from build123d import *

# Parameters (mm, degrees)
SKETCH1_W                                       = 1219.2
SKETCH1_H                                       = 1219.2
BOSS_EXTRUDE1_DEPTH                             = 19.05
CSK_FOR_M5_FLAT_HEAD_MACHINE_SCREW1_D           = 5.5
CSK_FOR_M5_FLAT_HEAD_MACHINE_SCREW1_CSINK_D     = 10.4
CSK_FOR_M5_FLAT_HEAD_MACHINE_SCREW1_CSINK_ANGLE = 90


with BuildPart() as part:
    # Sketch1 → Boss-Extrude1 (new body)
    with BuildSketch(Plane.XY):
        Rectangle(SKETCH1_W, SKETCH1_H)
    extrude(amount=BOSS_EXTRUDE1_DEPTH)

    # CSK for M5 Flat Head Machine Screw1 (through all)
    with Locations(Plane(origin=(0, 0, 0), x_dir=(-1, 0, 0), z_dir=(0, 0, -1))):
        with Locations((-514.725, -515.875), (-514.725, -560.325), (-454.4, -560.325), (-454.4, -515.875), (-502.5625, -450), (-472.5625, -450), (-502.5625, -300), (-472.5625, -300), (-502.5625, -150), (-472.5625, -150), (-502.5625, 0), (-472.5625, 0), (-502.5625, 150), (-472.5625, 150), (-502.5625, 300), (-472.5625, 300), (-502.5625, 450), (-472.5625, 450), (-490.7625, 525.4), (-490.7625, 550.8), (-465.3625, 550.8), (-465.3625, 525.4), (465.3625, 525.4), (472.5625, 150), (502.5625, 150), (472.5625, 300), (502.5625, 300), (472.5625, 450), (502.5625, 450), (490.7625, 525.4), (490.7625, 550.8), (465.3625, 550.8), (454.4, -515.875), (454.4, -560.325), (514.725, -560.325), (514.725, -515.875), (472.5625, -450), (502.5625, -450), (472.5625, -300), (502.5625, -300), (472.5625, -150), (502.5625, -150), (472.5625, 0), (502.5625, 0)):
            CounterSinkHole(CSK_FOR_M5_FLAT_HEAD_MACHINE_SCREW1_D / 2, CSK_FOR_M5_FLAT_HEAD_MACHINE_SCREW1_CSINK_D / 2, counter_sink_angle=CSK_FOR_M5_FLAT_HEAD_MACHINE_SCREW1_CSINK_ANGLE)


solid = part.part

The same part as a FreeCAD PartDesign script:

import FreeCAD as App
import Part
import Sketcher
Q = App.Units.Quantity


def add_polygon(sketch, points):
    """Adds a closed chain of lines whose ends are joined by coincident constraints."""
    first, n = sketch.GeometryCount, len(points)
    for a, b in zip(points, points[1:] + points[:1]):
        sketch.addGeometry(Part.LineSegment(App.Vector(*a, 0), App.Vector(*b, 0)), False)
    for i in range(n):
        sketch.addConstraint(Sketcher.Constraint("Coincident", first + i, 2, first + (i + 1) % n, 1))

doc = App.newDocument("Part")
body = doc.addObject("PartDesign::Body", "Body")

sketch1 = body.newObject("Sketcher::SketchObject", "Sketch")
sketch1.AttachmentSupport = (doc.getObject("XY_Plane"), [""])
sketch1.MapMode = "FlatFace"
add_polygon(sketch1, [(-610, 610), (-610, -610), (610, -610), (610, 610)])
sketch1.addConstraint(Sketcher.Constraint("Vertical", 0))
sketch1.addConstraint(Sketcher.Constraint("Horizontal", 1))
sketch1.addConstraint(Sketcher.Constraint("Vertical", 2))
sketch1.addConstraint(Sketcher.Constraint("Horizontal", 3))
sketch1.addConstraint(Sketcher.Constraint("Symmetric", 0, 2, 2, 2, -1, 1))
sketch1.addConstraint(Sketcher.Constraint("Equal", 3, 0))
sketch1.addConstraint(Sketcher.Constraint("DistanceX", 1, 1, 1, 2, Q("48 in")))
pad1 = body.newObject("PartDesign::Pad", "Pad")
pad1.Profile = sketch1
pad1.Length = Q("0.75 in")

sketch2 = body.newObject("Sketcher::SketchObject", "Sketch001")
sketch2.AttachmentSupport = (doc.getObject("XY_Plane"), [""])
sketch2.MapMode = "FlatFace"
sketch2.addGeometry(Part.Circle(App.Vector(514.7, -515.9, 0), App.Vector(0, 0, 1), 2.8), False)
sketch2.addGeometry(Part.Circle(App.Vector(514.7, -560.3, 0), App.Vector(0, 0, 1), 2.8), False)
sketch2.addGeometry(Part.Circle(App.Vector(454.4, -560.3, 0), App.Vector(0, 0, 1), 2.8), False)
sketch2.addGeometry(Part.Circle(App.Vector(454.4, -515.9, 0), App.Vector(0, 0, 1), 2.8), False)
sketch2.addGeometry(Part.Circle(App.Vector(502.6, -450, 0), App.Vector(0, 0, 1), 2.8), False)
sketch2.addGeometry(Part.Circle(App.Vector(472.6, -450, 0), App.Vector(0, 0, 1), 2.8), False)
sketch2.addGeometry(Part.Circle(App.Vector(502.6, -300, 0), App.Vector(0, 0, 1), 2.8), False)
sketch2.addGeometry(Part.Circle(App.Vector(472.6, -300, 0), App.Vector(0, 0, 1), 2.8), False)
sketch2.addGeometry(Part.Circle(App.Vector(502.6, -150, 0), App.Vector(0, 0, 1), 2.8), False)
sketch2.addGeometry(Part.Circle(App.Vector(472.6, -150, 0), App.Vector(0, 0, 1), 2.8), False)
sketch2.addGeometry(Part.Circle(App.Vector(502.6, 0, 0), App.Vector(0, 0, 1), 2.8), False)
sketch2.addGeometry(Part.Circle(App.Vector(472.6, 0, 0), App.Vector(0, 0, 1), 2.8), False)
sketch2.addGeometry(Part.Circle(App.Vector(502.6, 150, 0), App.Vector(0, 0, 1), 2.8), False)
sketch2.addGeometry(Part.Circle(App.Vector(472.6, 150, 0), App.Vector(0, 0, 1), 2.8), False)
sketch2.addGeometry(Part.Circle(App.Vector(502.6, 300, 0), App.Vector(0, 0, 1), 2.8), False)
sketch2.addGeometry(Part.Circle(App.Vector(472.6, 300, 0), App.Vector(0, 0, 1), 2.8), False)
sketch2.addGeometry(Part.Circle(App.Vector(502.6, 450, 0), App.Vector(0, 0, 1), 2.8), False)
sketch2.addGeometry(Part.Circle(App.Vector(472.6, 450, 0), App.Vector(0, 0, 1), 2.8), False)
sketch2.addGeometry(Part.Circle(App.Vector(490.8, 525.4, 0), App.Vector(0, 0, 1), 2.8), False)
sketch2.addGeometry(Part.Circle(App.Vector(490.8, 550.8, 0), App.Vector(0, 0, 1), 2.8), False)
sketch2.addGeometry(Part.Circle(App.Vector(465.4, 550.8, 0), App.Vector(0, 0, 1), 2.8), False)
sketch2.addGeometry(Part.Circle(App.Vector(465.4, 525.4, 0), App.Vector(0, 0, 1), 2.8), False)
sketch2.addGeometry(Part.Circle(App.Vector(-465.4, 525.4, 0), App.Vector(0, 0, 1), 2.8), False)
sketch2.addGeometry(Part.Circle(App.Vector(-472.6, 150, 0), App.Vector(0, 0, 1), 2.8), False)
sketch2.addGeometry(Part.Circle(App.Vector(-502.6, 150, 0), App.Vector(0, 0, 1), 2.8), False)
sketch2.addGeometry(Part.Circle(App.Vector(-472.6, 300, 0), App.Vector(0, 0, 1), 2.8), False)
sketch2.addGeometry(Part.Circle(App.Vector(-502.6, 300, 0), App.Vector(0, 0, 1), 2.8), False)
sketch2.addGeometry(Part.Circle(App.Vector(-472.6, 450, 0), App.Vector(0, 0, 1), 2.8), False)
sketch2.addGeometry(Part.Circle(App.Vector(-502.6, 450, 0), App.Vector(0, 0, 1), 2.8), False)
sketch2.addGeometry(Part.Circle(App.Vector(-490.8, 525.4, 0), App.Vector(0, 0, 1), 2.8), False)
sketch2.addGeometry(Part.Circle(App.Vector(-490.8, 550.8, 0), App.Vector(0, 0, 1), 2.8), False)
sketch2.addGeometry(Part.Circle(App.Vector(-465.4, 550.8, 0), App.Vector(0, 0, 1), 2.8), False)
sketch2.addGeometry(Part.Circle(App.Vector(-454.4, -515.9, 0), App.Vector(0, 0, 1), 2.8), False)
sketch2.addGeometry(Part.Circle(App.Vector(-454.4, -560.3, 0), App.Vector(0, 0, 1), 2.8), False)
sketch2.addGeometry(Part.Circle(App.Vector(-514.7, -560.3, 0), App.Vector(0, 0, 1), 2.8), False)
sketch2.addGeometry(Part.Circle(App.Vector(-514.7, -515.9, 0), App.Vector(0, 0, 1), 2.8), False)
sketch2.addGeometry(Part.Circle(App.Vector(-472.6, -450, 0), App.Vector(0, 0, 1), 2.8), False)
sketch2.addGeometry(Part.Circle(App.Vector(-502.6, -450, 0), App.Vector(0, 0, 1), 2.8), False)
sketch2.addGeometry(Part.Circle(App.Vector(-472.6, -300, 0), App.Vector(0, 0, 1), 2.8), False)
sketch2.addGeometry(Part.Circle(App.Vector(-502.6, -300, 0), App.Vector(0, 0, 1), 2.8), False)
sketch2.addGeometry(Part.Circle(App.Vector(-472.6, -150, 0), App.Vector(0, 0, 1), 2.8), False)
sketch2.addGeometry(Part.Circle(App.Vector(-502.6, -150, 0), App.Vector(0, 0, 1), 2.8), False)
sketch2.addGeometry(Part.Circle(App.Vector(-472.6, 0, 0), App.Vector(0, 0, 1), 2.8), False)
sketch2.addGeometry(Part.Circle(App.Vector(-502.6, 0, 0), App.Vector(0, 0, 1), 2.8), False)
sketch2.addConstraint(Sketcher.Constraint("Equal", 0, 1))
sketch2.addConstraint(Sketcher.Constraint("Equal", 1, 2))
sketch2.addConstraint(Sketcher.Constraint("Equal", 2, 3))
sketch2.addConstraint(Sketcher.Constraint("Equal", 3, 4))
sketch2.addConstraint(Sketcher.Constraint("Equal", 4, 5))
sketch2.addConstraint(Sketcher.Constraint("Equal", 5, 6))
sketch2.addConstraint(Sketcher.Constraint("Equal", 6, 7))
sketch2.addConstraint(Sketcher.Constraint("Equal", 7, 8))
sketch2.addConstraint(Sketcher.Constraint("Equal", 8, 9))
sketch2.addConstraint(Sketcher.Constraint("Equal", 9, 10))
sketch2.addConstraint(Sketcher.Constraint("Equal", 10, 11))
sketch2.addConstraint(Sketcher.Constraint("Equal", 11, 12))
sketch2.addConstraint(Sketcher.Constraint("Equal", 12, 13))
sketch2.addConstraint(Sketcher.Constraint("Equal", 13, 14))
sketch2.addConstraint(Sketcher.Constraint("Equal", 14, 15))
sketch2.addConstraint(Sketcher.Constraint("Equal", 15, 16))
sketch2.addConstraint(Sketcher.Constraint("Equal", 16, 17))
sketch2.addConstraint(Sketcher.Constraint("Equal", 17, 18))
sketch2.addConstraint(Sketcher.Constraint("Equal", 18, 19))
sketch2.addConstraint(Sketcher.Constraint("Equal", 19, 20))
sketch2.addConstraint(Sketcher.Constraint("Equal", 20, 21))
sketch2.addConstraint(Sketcher.Constraint("Equal", 21, 22))
sketch2.addConstraint(Sketcher.Constraint("Equal", 22, 23))
sketch2.addConstraint(Sketcher.Constraint("Equal", 23, 24))
sketch2.addConstraint(Sketcher.Constraint("Equal", 24, 25))
sketch2.addConstraint(Sketcher.Constraint("Equal", 25, 26))
sketch2.addConstraint(Sketcher.Constraint("Equal", 26, 27))
sketch2.addConstraint(Sketcher.Constraint("Equal", 27, 28))
sketch2.addConstraint(Sketcher.Constraint("Equal", 28, 29))
sketch2.addConstraint(Sketcher.Constraint("Equal", 29, 30))
sketch2.addConstraint(Sketcher.Constraint("Equal", 30, 31))
sketch2.addConstraint(Sketcher.Constraint("Equal", 31, 32))
sketch2.addConstraint(Sketcher.Constraint("Equal", 32, 33))
sketch2.addConstraint(Sketcher.Constraint("Equal", 33, 34))
sketch2.addConstraint(Sketcher.Constraint("Equal", 34, 35))
sketch2.addConstraint(Sketcher.Constraint("Equal", 35, 36))
sketch2.addConstraint(Sketcher.Constraint("Equal", 36, 37))
sketch2.addConstraint(Sketcher.Constraint("Equal", 37, 38))
sketch2.addConstraint(Sketcher.Constraint("Equal", 38, 39))
sketch2.addConstraint(Sketcher.Constraint("Equal", 39, 40))
sketch2.addConstraint(Sketcher.Constraint("Equal", 40, 41))
sketch2.addConstraint(Sketcher.Constraint("Equal", 41, 42))
sketch2.addConstraint(Sketcher.Constraint("Equal", 42, 43))
sketch2.addConstraint(Sketcher.Constraint("Symmetric", 9, 3, 23, 3, -1, 1))
sketch2.addConstraint(Sketcher.Constraint("Symmetric", 8, 3, 24, 3, -1, 1))
sketch2.addConstraint(Sketcher.Constraint("Symmetric", 7, 3, 25, 3, -1, 1))
sketch2.addConstraint(Sketcher.Constraint("Symmetric", 6, 3, 26, 3, -1, 1))
sketch2.addConstraint(Sketcher.Constraint("Symmetric", 5, 3, 27, 3, -1, 1))
sketch2.addConstraint(Sketcher.Constraint("Symmetric", 4, 3, 28, 3, -1, 1))
sketch2.addConstraint(Sketcher.Constraint("Symmetric", 17, 3, 36, 3, -1, 1))
sketch2.addConstraint(Sketcher.Constraint("Symmetric", 16, 3, 37, 3, -1, 1))
sketch2.addConstraint(Sketcher.Constraint("Symmetric", 15, 3, 38, 3, -1, 1))
sketch2.addConstraint(Sketcher.Constraint("Symmetric", 14, 3, 39, 3, -1, 1))
sketch2.addConstraint(Sketcher.Constraint("Symmetric", 13, 3, 40, 3, -1, 1))
sketch2.addConstraint(Sketcher.Constraint("Symmetric", 12, 3, 41, 3, -1, 1))
sketch2.addConstraint(Sketcher.Constraint("Symmetric", 11, 3, 42, 3, -1, 1))
sketch2.addConstraint(Sketcher.Constraint("Symmetric", 10, 3, 43, 3, -1, 1))
sketch2.addConstraint(Sketcher.Constraint("Symmetric", 21, 3, 22, 3, -2))
sketch2.addConstraint(Sketcher.Constraint("Symmetric", 13, 3, 23, 3, -2))
sketch2.addConstraint(Sketcher.Constraint("Symmetric", 12, 3, 24, 3, -2))
sketch2.addConstraint(Sketcher.Constraint("Symmetric", 15, 3, 25, 3, -2))
sketch2.addConstraint(Sketcher.Constraint("Symmetric", 14, 3, 26, 3, -2))
sketch2.addConstraint(Sketcher.Constraint("Symmetric", 17, 3, 27, 3, -2))
sketch2.addConstraint(Sketcher.Constraint("Symmetric", 16, 3, 28, 3, -2))
sketch2.addConstraint(Sketcher.Constraint("Symmetric", 18, 3, 29, 3, -2))
sketch2.addConstraint(Sketcher.Constraint("Symmetric", 19, 3, 30, 3, -2))
sketch2.addConstraint(Sketcher.Constraint("Symmetric", 20, 3, 31, 3, -2))
sketch2.addConstraint(Sketcher.Constraint("Symmetric", 3, 3, 32, 3, -2))
sketch2.addConstraint(Sketcher.Constraint("Symmetric", 2, 3, 33, 3, -2))
sketch2.addConstraint(Sketcher.Constraint("Symmetric", 1, 3, 34, 3, -2))
sketch2.addConstraint(Sketcher.Constraint("Symmetric", 0, 3, 35, 3, -2))
sketch2.addConstraint(Sketcher.Constraint("PointOnObject", 10, 3, -1))
sketch2.addConstraint(Sketcher.Constraint("PointOnObject", 11, 3, -1))
sketch2.addConstraint(Sketcher.Constraint("Horizontal", 1, 3, 2, 3))
sketch2.addConstraint(Sketcher.Constraint("Horizontal", 0, 3, 3, 3))
sketch2.addConstraint(Sketcher.Constraint("Horizontal", 4, 3, 5, 3))
sketch2.addConstraint(Sketcher.Constraint("Horizontal", 6, 3, 7, 3))
sketch2.addConstraint(Sketcher.Constraint("Horizontal", 8, 3, 9, 3))
sketch2.addConstraint(Sketcher.Constraint("Horizontal", 19, 3, 20, 3))
sketch2.addConstraint(Sketcher.Constraint("Horizontal", 18, 3, 21, 3))
sketch2.addConstraint(Sketcher.Constraint("Vertical", 0, 3, 1, 3))
sketch2.addConstraint(Sketcher.Constraint("Vertical", 2, 3, 3, 3))
sketch2.addConstraint(Sketcher.Constraint("Vertical", 4, 3, 6, 3))
sketch2.addConstraint(Sketcher.Constraint("Vertical", 5, 3, 7, 3))
sketch2.addConstraint(Sketcher.Constraint("Vertical", 6, 3, 8, 3))
sketch2.addConstraint(Sketcher.Constraint("Vertical", 7, 3, 9, 3))
sketch2.addConstraint(Sketcher.Constraint("Vertical", 8, 3, 10, 3))
sketch2.addConstraint(Sketcher.Constraint("Vertical", 9, 3, 11, 3))
sketch2.addConstraint(Sketcher.Constraint("Vertical", 18, 3, 19, 3))
sketch2.addConstraint(Sketcher.Constraint("Vertical", 20, 3, 21, 3))
sketch2.addConstraint(Sketcher.Constraint("DistanceY", 18, 3, 19, 3, Q("1 in")))
sketch2.addConstraint(Sketcher.Constraint("DistanceX", 20, 3, 19, 3, Q("1 in")))
sketch2.addConstraint(Sketcher.Constraint("Diameter", 0, 5.5))
sketch2.addConstraint(Sketcher.Constraint("DistanceY", 1, 3, 0, 3, Q("1.75 in")))
sketch2.addConstraint(Sketcher.Constraint("DistanceX", 2, 3, 1, 3, Q("2.375 in")))
sketch2.addConstraint(Sketcher.Constraint("DistanceX", -1, 1, 0, 3, 514.725))
sketch2.addConstraint(Sketcher.Constraint("DistanceY", 0, 3, -1, 1, 515.875))
sketch2.addConstraint(Sketcher.Constraint("DistanceX", -1, 1, 4, 3, 502.5625))
sketch2.addConstraint(Sketcher.Constraint("DistanceY", 4, 3, -1, 1, 450.0))
sketch2.addConstraint(Sketcher.Constraint("DistanceX", -1, 1, 5, 3, 472.5625))
sketch2.addConstraint(Sketcher.Constraint("DistanceY", 6, 3, -1, 1, 300.0))
sketch2.addConstraint(Sketcher.Constraint("DistanceY", 8, 3, -1, 1, 150.0))
sketch2.addConstraint(Sketcher.Constraint("DistanceX", -1, 1, 18, 3, 490.7625))
sketch2.addConstraint(Sketcher.Constraint("DistanceY", -1, 1, 18, 3, 525.4))
doc.recompute()
hole = body.newObject("PartDesign::Hole", "Hole")
hole.Profile = sketch2
hole.ThreadType = "None"
hole.Diameter = 5.5
hole.DepthType = "ThroughAll"
hole.HoleCutType = "Countersink"
hole.HoleCutDiameter = 10.4
hole.HoleCutCountersinkAngle = 90
hole.Reversed = True

doc.recompute()
